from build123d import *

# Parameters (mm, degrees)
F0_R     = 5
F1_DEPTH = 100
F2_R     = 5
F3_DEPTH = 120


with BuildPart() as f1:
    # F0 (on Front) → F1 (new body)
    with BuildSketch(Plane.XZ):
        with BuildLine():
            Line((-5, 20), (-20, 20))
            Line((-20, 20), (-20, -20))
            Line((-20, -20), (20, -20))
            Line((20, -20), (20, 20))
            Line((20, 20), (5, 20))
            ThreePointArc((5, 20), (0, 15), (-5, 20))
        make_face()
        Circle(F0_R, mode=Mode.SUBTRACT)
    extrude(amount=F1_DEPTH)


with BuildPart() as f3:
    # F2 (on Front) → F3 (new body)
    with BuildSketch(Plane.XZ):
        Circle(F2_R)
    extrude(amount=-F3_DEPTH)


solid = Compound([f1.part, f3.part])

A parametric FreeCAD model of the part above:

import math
import FreeCAD as App
import Part
import Sketcher

doc = App.newDocument("Part")
body = doc.addObject("PartDesign::Body", "Body")

sketch1 = body.newObject("Sketcher::SketchObject", "Sketch")
sketch1.AttachmentSupport = (doc.getObject("XZ_Plane"), [""])
sketch1.MapMode = "FlatFace"
sketch1.addGeometry([
    Part.LineSegment(App.Vector(-5, 20, 0), App.Vector(-20, 20, 0)),
    Part.LineSegment(App.Vector(-20, 20, 0), App.Vector(-20, -20, 0)),
    Part.LineSegment(App.Vector(-20, -20, 0), App.Vector(20, -20, 0)),
    Part.LineSegment(App.Vector(20, -20, 0), App.Vector(20, 20, 0)),
    Part.LineSegment(App.Vector(20, 20, 0), App.Vector(5, 20, 0)),
    Part.ArcOfCircle(Part.Circle(App.Vector(0, 20, 0), App.Vector(0, 0, 1), 5), math.radians(180), math.radians(360)),
    Part.Circle(App.Vector(0, 0, 0), App.Vector(0, 0, 1), 5),
], False)
sketch1.addConstraint([
    Sketcher.Constraint("Coincident", 0, 2, 1, 1),
    Sketcher.Constraint("Coincident", 1, 2, 2, 1),
    Sketcher.Constraint("Coincident", 2, 2, 3, 1),
    Sketcher.Constraint("Coincident", 3, 2, 4, 1),
    Sketcher.Constraint("Coincident", 4, 2, 5, 2),
    Sketcher.Constraint("Coincident", 5, 1, 0, 1),
    Sketcher.Constraint("Horizontal", 0),
    Sketcher.Constraint("Vertical", 1),
    Sketcher.Constraint("Horizontal", 2),
    Sketcher.Constraint("Vertical", 3),
    Sketcher.Constraint("Horizontal", 4),
    Sketcher.Constraint("Coincident", 6, 3, -1, 1),
    Sketcher.Constraint("Equal", 5, 6),
    Sketcher.Constraint("Symmetric", 0, 2, 2, 2, -1, 1),
    Sketcher.Constraint("Symmetric", 4, 2, 5, 1, -2),
    Sketcher.Constraint("Horizontal", 5, 3, 0, 2),
    Sketcher.Constraint("Equal", 2, 1),
    Sketcher.Constraint("Diameter", 6, 10.0),
    Sketcher.Constraint("DistanceX", 0, 2, 0, 1, 15.0),
])
pad1 = body.newObject("PartDesign::Pad", "Pad")
pad1.Profile = sketch1
pad1.Length = 100
body2 = doc.addObject("PartDesign::Body", "Body001")

sketch2 = body2.newObject("Sketcher::SketchObject", "Sketch001")
sketch2.AttachmentSupport = (doc.getObject("XZ_Plane001"), [""])
sketch2.MapMode = "FlatFace"
sketch2.addGeometry(Part.Circle(App.Vector(0, 0, 0), App.Vector(0, 0, 1), 5), False)
sketch2.addConstraint([
    Sketcher.Constraint("Coincident", 0, 3, -1, 1),
    Sketcher.Constraint("Diameter", 0, 10.0),
])
pad2 = body2.newObject("PartDesign::Pad", "Pad001")
pad2.Profile = sketch2
pad2.Length = 120
pad2.Reversed = True

doc.recompute()
